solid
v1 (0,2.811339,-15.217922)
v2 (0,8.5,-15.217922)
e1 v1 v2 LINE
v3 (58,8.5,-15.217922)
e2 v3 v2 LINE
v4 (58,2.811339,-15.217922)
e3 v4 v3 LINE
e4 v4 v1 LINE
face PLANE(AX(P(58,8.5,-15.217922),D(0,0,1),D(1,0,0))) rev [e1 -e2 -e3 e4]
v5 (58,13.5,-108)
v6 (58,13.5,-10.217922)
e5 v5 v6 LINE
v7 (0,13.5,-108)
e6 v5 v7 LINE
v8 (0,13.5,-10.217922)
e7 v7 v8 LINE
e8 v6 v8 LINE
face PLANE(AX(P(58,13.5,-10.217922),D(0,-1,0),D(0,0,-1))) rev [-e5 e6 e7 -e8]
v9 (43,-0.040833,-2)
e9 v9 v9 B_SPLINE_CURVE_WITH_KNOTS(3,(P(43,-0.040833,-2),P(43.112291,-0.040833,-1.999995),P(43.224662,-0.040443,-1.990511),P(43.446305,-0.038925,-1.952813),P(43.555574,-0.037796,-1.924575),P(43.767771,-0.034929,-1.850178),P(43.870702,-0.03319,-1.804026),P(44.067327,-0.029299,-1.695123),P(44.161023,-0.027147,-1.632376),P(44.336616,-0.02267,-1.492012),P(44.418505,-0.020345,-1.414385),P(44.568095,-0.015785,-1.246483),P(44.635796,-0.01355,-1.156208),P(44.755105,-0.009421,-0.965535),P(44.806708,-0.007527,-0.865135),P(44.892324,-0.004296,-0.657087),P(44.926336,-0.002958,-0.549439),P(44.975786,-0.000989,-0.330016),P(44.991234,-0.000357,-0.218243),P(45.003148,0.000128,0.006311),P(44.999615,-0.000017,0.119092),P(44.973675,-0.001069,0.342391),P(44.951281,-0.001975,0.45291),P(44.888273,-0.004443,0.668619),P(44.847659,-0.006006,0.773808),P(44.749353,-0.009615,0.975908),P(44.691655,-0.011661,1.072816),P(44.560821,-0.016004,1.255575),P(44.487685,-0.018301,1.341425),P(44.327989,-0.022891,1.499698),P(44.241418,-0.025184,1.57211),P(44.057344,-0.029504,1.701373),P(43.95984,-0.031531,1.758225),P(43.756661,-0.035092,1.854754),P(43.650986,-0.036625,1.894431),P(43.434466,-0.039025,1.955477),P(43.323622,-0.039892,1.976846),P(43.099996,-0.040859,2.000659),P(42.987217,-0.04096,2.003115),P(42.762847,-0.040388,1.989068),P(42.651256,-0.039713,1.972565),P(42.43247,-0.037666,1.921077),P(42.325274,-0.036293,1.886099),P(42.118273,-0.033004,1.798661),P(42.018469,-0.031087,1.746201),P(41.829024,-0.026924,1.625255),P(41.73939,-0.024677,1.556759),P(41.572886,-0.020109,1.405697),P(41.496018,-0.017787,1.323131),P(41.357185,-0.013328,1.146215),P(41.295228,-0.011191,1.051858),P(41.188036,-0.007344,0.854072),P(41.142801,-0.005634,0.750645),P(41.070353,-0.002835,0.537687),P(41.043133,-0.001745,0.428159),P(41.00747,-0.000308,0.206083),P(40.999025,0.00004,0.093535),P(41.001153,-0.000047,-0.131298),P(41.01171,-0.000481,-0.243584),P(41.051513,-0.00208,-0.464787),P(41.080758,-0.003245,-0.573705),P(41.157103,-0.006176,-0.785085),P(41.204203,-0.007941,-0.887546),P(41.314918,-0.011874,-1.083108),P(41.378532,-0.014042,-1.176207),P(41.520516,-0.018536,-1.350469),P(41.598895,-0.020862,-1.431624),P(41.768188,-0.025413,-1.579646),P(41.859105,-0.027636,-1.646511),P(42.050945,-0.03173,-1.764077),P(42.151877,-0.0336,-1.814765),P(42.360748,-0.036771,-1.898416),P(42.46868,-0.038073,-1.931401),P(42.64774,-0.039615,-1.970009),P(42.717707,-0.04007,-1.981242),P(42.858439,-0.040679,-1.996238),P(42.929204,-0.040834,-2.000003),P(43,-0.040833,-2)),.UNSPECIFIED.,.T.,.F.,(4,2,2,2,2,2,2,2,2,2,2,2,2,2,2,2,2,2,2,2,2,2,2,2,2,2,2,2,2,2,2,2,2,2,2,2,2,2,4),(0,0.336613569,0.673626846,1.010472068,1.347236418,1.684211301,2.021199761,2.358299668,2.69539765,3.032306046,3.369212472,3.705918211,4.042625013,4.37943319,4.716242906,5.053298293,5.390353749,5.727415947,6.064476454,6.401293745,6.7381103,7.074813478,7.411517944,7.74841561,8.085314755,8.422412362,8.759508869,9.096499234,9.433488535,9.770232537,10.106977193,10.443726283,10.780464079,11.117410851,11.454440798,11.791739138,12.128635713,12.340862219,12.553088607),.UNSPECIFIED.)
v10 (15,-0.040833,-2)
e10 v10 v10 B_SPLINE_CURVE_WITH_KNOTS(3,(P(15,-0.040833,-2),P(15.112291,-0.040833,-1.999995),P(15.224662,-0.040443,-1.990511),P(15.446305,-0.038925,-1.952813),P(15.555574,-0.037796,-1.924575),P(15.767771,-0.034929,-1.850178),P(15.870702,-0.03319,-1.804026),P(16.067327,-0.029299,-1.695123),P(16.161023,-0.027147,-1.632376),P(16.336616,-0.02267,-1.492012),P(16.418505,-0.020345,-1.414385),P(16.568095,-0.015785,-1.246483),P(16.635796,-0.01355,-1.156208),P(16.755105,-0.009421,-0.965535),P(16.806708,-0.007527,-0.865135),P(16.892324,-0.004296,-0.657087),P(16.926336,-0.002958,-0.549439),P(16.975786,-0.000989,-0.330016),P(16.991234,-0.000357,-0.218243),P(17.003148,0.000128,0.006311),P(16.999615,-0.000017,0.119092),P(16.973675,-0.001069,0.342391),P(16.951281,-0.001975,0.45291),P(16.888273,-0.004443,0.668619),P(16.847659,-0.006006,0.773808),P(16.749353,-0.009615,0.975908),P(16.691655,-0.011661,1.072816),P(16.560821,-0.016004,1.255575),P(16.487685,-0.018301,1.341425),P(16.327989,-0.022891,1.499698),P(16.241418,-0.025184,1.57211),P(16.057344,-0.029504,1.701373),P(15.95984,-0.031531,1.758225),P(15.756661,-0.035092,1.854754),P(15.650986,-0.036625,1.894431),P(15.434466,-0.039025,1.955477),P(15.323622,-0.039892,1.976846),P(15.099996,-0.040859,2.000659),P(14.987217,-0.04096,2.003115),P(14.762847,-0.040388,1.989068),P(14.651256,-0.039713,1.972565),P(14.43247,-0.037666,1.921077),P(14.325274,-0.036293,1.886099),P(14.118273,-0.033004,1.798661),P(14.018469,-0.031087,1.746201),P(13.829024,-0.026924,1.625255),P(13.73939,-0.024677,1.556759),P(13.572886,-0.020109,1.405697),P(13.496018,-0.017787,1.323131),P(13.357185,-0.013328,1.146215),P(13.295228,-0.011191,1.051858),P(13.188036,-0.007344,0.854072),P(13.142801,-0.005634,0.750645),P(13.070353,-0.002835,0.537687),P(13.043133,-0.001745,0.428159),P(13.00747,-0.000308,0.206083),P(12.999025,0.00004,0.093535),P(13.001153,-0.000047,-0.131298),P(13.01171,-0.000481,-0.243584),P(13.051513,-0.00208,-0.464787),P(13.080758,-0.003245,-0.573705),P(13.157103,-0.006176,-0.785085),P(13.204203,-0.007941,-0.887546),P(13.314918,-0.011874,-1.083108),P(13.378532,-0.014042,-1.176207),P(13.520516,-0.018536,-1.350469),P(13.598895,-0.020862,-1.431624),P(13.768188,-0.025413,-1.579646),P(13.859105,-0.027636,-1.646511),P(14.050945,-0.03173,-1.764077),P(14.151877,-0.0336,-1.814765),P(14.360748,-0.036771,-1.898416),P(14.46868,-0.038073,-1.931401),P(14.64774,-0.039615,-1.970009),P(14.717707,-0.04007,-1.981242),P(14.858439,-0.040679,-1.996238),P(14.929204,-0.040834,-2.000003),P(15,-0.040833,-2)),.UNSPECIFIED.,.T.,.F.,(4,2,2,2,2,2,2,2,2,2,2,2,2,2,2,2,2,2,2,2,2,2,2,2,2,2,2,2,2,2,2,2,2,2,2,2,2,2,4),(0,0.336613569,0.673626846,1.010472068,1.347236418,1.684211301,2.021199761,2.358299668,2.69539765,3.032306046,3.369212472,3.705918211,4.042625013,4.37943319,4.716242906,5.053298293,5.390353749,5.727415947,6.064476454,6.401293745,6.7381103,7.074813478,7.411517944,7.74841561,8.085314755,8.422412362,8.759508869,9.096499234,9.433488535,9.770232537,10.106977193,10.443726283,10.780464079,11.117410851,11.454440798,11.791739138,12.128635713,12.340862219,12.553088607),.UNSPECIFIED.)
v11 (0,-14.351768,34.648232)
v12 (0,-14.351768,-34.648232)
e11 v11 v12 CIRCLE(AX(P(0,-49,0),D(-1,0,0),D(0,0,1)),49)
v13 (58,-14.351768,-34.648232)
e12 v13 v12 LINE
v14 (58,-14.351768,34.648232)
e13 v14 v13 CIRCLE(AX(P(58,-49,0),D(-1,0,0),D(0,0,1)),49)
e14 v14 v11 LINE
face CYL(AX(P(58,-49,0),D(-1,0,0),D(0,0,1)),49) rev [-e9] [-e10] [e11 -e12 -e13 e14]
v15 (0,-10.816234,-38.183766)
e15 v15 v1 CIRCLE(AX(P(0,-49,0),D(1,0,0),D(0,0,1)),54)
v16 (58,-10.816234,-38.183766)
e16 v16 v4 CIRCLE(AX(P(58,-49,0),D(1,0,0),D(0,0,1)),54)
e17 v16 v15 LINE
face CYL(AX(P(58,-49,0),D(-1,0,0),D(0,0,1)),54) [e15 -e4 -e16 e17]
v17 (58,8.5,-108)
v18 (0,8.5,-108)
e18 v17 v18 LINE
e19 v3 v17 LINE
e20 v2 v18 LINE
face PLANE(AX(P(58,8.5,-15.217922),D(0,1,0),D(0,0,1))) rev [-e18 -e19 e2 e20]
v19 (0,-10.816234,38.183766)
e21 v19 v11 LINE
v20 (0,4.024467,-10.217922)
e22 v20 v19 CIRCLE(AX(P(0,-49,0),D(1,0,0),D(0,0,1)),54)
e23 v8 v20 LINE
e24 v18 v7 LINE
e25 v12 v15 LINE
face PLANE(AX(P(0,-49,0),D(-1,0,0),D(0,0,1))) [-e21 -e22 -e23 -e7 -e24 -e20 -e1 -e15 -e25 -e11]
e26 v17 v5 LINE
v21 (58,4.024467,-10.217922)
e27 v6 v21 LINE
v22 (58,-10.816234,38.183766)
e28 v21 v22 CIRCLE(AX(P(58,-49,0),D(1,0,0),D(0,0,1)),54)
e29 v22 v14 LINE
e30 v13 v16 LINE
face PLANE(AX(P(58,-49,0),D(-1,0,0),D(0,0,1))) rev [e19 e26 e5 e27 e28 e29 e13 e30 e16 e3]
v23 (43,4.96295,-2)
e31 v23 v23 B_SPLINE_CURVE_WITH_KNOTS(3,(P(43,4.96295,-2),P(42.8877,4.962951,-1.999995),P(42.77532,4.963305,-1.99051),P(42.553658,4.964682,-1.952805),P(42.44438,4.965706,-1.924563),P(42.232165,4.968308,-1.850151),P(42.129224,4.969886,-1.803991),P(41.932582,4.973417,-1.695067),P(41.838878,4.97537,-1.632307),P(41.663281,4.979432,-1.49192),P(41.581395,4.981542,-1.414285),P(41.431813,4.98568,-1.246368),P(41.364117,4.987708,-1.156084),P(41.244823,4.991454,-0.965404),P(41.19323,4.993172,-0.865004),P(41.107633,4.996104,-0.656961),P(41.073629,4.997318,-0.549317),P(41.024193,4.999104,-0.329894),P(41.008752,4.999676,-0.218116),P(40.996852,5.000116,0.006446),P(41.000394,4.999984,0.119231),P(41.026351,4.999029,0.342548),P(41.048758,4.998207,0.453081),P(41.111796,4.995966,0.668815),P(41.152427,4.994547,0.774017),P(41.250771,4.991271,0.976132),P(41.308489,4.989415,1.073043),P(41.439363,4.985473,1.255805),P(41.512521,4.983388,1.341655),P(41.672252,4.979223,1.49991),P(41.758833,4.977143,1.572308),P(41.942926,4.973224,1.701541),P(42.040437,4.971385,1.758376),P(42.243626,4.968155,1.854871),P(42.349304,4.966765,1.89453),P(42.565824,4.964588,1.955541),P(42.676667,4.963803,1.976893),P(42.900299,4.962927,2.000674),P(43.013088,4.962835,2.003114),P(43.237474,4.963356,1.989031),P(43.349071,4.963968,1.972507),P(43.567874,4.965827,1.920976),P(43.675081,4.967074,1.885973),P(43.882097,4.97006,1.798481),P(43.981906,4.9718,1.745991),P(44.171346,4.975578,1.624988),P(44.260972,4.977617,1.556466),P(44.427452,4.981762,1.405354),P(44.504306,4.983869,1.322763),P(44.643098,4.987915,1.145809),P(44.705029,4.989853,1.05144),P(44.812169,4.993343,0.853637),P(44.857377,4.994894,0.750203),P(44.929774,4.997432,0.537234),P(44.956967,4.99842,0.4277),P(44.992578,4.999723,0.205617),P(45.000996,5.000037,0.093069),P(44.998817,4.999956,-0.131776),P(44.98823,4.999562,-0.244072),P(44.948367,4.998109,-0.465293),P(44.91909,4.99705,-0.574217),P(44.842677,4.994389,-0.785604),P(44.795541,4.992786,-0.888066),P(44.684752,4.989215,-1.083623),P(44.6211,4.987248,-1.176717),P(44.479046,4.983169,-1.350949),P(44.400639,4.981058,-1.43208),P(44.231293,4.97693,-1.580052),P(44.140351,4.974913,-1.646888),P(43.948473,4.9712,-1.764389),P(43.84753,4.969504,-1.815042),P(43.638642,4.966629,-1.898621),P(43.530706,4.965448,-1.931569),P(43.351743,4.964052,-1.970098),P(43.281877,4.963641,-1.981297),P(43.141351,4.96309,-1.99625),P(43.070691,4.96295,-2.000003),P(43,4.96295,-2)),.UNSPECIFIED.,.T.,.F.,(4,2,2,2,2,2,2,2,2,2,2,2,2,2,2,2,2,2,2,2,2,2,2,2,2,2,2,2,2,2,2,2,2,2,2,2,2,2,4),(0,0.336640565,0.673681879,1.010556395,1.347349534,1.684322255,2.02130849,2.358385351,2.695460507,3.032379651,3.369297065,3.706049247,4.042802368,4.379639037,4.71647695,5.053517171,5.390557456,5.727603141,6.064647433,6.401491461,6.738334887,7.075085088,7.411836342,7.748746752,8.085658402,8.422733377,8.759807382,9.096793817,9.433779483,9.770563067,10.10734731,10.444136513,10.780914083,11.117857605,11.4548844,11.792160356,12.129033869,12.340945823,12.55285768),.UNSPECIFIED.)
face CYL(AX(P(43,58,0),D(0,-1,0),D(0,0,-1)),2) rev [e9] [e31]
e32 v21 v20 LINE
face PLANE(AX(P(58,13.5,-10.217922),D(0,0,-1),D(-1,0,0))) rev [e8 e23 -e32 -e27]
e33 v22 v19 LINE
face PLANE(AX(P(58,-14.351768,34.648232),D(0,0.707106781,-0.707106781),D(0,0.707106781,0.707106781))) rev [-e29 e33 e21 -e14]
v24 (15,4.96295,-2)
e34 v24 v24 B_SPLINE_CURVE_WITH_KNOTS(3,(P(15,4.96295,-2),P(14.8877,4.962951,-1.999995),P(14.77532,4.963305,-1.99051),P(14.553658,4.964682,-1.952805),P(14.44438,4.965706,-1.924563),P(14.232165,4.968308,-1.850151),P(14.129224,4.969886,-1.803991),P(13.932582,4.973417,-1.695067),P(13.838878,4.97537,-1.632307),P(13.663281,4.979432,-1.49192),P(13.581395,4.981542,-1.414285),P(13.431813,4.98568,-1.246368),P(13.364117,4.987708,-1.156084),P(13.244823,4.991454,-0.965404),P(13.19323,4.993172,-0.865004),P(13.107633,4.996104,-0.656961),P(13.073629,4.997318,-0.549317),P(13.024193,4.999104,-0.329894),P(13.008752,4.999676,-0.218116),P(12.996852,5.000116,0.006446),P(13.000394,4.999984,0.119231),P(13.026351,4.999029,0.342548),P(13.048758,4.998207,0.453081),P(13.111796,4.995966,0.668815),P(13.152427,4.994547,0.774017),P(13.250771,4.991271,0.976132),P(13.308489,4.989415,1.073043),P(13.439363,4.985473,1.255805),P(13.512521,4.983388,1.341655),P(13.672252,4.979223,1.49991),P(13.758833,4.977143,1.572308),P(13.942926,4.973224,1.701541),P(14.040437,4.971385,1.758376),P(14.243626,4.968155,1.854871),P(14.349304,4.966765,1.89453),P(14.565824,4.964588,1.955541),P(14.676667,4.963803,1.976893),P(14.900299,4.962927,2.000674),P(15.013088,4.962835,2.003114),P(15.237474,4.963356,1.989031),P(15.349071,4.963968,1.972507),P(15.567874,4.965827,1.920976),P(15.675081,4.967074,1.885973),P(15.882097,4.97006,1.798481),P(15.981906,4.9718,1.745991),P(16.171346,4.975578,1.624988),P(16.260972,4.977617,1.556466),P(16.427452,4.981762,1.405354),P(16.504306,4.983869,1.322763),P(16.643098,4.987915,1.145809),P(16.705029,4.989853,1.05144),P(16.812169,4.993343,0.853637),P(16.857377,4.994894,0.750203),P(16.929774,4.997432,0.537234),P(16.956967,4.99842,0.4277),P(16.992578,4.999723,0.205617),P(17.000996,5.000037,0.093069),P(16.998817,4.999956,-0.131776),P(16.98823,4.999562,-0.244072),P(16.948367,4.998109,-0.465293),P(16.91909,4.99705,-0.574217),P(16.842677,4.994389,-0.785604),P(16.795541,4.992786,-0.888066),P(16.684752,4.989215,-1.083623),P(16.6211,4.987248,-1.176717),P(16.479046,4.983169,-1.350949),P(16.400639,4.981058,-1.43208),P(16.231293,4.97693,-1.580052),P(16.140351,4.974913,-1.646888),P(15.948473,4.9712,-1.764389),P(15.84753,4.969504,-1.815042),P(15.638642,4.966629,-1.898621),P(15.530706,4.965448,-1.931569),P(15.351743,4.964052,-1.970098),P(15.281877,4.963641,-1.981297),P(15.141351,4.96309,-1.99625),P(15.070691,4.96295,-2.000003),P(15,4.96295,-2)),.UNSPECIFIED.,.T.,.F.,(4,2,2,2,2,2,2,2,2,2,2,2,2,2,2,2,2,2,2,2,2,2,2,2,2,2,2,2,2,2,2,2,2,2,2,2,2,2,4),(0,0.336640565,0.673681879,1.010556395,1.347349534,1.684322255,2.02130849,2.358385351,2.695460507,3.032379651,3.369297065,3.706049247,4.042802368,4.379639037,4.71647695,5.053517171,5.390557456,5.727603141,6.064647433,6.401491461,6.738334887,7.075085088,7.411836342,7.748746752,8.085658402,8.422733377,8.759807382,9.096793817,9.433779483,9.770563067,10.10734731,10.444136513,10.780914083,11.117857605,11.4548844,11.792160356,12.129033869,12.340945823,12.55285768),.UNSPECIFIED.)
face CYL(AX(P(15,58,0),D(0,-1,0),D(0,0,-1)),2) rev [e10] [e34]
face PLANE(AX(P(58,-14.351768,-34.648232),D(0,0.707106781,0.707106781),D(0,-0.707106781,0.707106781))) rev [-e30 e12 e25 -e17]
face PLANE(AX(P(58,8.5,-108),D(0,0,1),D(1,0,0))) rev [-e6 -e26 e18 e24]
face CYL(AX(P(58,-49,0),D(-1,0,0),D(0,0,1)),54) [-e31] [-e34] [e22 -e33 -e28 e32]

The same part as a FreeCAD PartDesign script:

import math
import FreeCAD as App
import Part
import Sketcher
from FreeCAD import Vector
Q = App.Units.Quantity

doc = App.newDocument("Part")
body = doc.addObject("PartDesign::Body", "Body")

# Sketch on YZ plane
sketch1 = body.newObject("Sketcher::SketchObject", "Sketch")
sketch1.AttachmentSupport = (doc.getObject("YZ_Plane"), [""])
sketch1.MapMode = "FlatFace"
sketch1.addGeometry([
    Part.LineSegment(Vector(-11, 38, 0), Vector(-14, 35, 0)),  # 0
    Part.ArcOfCircle(Part.Circle(Vector(-49, 0, 0), Vector(0, 0, 1), 49), math.radians(-45), math.radians(45)),  # 1
    Part.LineSegment(Vector(-14, -35, 0), Vector(-11, -38, 0)),  # 2
    Part.ArcOfCircle(Part.Circle(Vector(-49, 0, 0), Vector(0, 0, 1), 54), math.radians(-45), math.radians(-16)),  # 3
    Part.LineSegment(Vector(3, -15, 0), Vector(8, -15, 0)),  # 4
    Part.LineSegment(Vector(8, -15, 0), Vector(8, -108, 0)),  # 5
    Part.LineSegment(Vector(8, -108, 0), Vector(14, -108, 0)),  # 6
    Part.LineSegment(Vector(14, -108, 0), Vector(14, -10, 0)),  # 7
    Part.LineSegment(Vector(14, -10, 0), Vector(4, -10, 0)),  # 8
    Part.ArcOfCircle(Part.Circle(Vector(-49, 0, 0), Vector(0, 0, 1), 54), math.radians(-11), math.radians(45)),  # 9
], False)
sketch1.addConstraint([
    Sketcher.Constraint("Coincident", 0, 2, 1, 2),
    Sketcher.Constraint("Coincident", 1, 1, 2, 1),
    Sketcher.Constraint("Coincident", 2, 2, 3, 1),
    Sketcher.Constraint("Coincident", 3, 2, 4, 1),
    Sketcher.Constraint("Coincident", 4, 2, 5, 1),
    Sketcher.Constraint("Coincident", 5, 2, 6, 1),
    Sketcher.Constraint("Coincident", 6, 2, 7, 1),
    Sketcher.Constraint("Coincident", 7, 2, 8, 1),
    Sketcher.Constraint("Coincident", 8, 2, 9, 1),
    Sketcher.Constraint("Coincident", 9, 2, 0, 1),
    Sketcher.Constraint("Horizontal", 4),
    Sketcher.Constraint("Vertical", 5),
    Sketcher.Constraint("Horizontal", 6),
    Sketcher.Constraint("Vertical", 7),
    Sketcher.Constraint("Horizontal", 8),
    Sketcher.Constraint("Coincident", 3, 3, 1, 3),
    Sketcher.Constraint("Coincident", 9, 3, 1, 3),
    Sketcher.Constraint("Equal", 3, 9),
    Sketcher.Constraint("Symmetric", 0, 2, 1, 1, -1),
    Sketcher.Constraint("Perpendicular", 0, 2),
    Sketcher.Constraint("Vertical", 2, 2, 9, 2),
    Sketcher.Constraint("Radius", 1, Q("49 mm")),
    Sketcher.Constraint("Radius", 3, Q("54 mm")),
    Sketcher.Constraint("DistanceX", 6, 1, 6, 2, Q("5 mm")),
    Sketcher.Constraint("DistanceX", 1, 3, -1, 1, Q("49 mm")),
    Sketcher.Constraint("DistanceY", 5, 2, -1, 1, Q("108 mm")),
    Sketcher.Constraint("DistanceY", 4, 2, 7, 2, Q("5 mm")),
    Sketcher.Constraint("DistanceX", -1, 1, 4, 2, Q("8.5 mm")),
    Sketcher.Constraint("DistanceY", 2, 2, 0, 2, Q("72.831998 mm")),
    Sketcher.Constraint("DistanceX", 4, 1, 4, 2, Q("5.688661 mm")),
])
pad1 = body.newObject("PartDesign::Pad", "Pad")
pad1.Profile = sketch1
pad1.Length = 58

# Sketch on XZ plane
sketch2 = body.newObject("Sketcher::SketchObject", "Sketch001")
sketch2.AttachmentSupport = (doc.getObject("XZ_Plane"), [""])
sketch2.MapMode = "FlatFace"
sketch2.addGeometry([
    Part.Circle(Vector(15, 0, 0), Vector(0, 0, 1), 2),
    Part.Circle(Vector(43, 0, 0), Vector(0, 0, 1), 2),
], False)
sketch2.addConstraint([
    Sketcher.Constraint("Equal", 0, 1),
    Sketcher.Constraint("PointOnObject", 0, 3, -1),
    Sketcher.Constraint("PointOnObject", 1, 3, -1),
    Sketcher.Constraint("Diameter", 0, Q("4 mm")),
    Sketcher.Constraint("DistanceX", -1, 1, 0, 3, Q("15 mm")),
    Sketcher.Constraint("DistanceX", -1, 1, 1, 3, Q("43 mm")),
])
pocket1 = body.newObject("PartDesign::Pocket", "Pocket")
pocket1.Profile = sketch2
pocket1.Type = "ThroughAll"
pocket1.Midplane = True

doc.recompute()
